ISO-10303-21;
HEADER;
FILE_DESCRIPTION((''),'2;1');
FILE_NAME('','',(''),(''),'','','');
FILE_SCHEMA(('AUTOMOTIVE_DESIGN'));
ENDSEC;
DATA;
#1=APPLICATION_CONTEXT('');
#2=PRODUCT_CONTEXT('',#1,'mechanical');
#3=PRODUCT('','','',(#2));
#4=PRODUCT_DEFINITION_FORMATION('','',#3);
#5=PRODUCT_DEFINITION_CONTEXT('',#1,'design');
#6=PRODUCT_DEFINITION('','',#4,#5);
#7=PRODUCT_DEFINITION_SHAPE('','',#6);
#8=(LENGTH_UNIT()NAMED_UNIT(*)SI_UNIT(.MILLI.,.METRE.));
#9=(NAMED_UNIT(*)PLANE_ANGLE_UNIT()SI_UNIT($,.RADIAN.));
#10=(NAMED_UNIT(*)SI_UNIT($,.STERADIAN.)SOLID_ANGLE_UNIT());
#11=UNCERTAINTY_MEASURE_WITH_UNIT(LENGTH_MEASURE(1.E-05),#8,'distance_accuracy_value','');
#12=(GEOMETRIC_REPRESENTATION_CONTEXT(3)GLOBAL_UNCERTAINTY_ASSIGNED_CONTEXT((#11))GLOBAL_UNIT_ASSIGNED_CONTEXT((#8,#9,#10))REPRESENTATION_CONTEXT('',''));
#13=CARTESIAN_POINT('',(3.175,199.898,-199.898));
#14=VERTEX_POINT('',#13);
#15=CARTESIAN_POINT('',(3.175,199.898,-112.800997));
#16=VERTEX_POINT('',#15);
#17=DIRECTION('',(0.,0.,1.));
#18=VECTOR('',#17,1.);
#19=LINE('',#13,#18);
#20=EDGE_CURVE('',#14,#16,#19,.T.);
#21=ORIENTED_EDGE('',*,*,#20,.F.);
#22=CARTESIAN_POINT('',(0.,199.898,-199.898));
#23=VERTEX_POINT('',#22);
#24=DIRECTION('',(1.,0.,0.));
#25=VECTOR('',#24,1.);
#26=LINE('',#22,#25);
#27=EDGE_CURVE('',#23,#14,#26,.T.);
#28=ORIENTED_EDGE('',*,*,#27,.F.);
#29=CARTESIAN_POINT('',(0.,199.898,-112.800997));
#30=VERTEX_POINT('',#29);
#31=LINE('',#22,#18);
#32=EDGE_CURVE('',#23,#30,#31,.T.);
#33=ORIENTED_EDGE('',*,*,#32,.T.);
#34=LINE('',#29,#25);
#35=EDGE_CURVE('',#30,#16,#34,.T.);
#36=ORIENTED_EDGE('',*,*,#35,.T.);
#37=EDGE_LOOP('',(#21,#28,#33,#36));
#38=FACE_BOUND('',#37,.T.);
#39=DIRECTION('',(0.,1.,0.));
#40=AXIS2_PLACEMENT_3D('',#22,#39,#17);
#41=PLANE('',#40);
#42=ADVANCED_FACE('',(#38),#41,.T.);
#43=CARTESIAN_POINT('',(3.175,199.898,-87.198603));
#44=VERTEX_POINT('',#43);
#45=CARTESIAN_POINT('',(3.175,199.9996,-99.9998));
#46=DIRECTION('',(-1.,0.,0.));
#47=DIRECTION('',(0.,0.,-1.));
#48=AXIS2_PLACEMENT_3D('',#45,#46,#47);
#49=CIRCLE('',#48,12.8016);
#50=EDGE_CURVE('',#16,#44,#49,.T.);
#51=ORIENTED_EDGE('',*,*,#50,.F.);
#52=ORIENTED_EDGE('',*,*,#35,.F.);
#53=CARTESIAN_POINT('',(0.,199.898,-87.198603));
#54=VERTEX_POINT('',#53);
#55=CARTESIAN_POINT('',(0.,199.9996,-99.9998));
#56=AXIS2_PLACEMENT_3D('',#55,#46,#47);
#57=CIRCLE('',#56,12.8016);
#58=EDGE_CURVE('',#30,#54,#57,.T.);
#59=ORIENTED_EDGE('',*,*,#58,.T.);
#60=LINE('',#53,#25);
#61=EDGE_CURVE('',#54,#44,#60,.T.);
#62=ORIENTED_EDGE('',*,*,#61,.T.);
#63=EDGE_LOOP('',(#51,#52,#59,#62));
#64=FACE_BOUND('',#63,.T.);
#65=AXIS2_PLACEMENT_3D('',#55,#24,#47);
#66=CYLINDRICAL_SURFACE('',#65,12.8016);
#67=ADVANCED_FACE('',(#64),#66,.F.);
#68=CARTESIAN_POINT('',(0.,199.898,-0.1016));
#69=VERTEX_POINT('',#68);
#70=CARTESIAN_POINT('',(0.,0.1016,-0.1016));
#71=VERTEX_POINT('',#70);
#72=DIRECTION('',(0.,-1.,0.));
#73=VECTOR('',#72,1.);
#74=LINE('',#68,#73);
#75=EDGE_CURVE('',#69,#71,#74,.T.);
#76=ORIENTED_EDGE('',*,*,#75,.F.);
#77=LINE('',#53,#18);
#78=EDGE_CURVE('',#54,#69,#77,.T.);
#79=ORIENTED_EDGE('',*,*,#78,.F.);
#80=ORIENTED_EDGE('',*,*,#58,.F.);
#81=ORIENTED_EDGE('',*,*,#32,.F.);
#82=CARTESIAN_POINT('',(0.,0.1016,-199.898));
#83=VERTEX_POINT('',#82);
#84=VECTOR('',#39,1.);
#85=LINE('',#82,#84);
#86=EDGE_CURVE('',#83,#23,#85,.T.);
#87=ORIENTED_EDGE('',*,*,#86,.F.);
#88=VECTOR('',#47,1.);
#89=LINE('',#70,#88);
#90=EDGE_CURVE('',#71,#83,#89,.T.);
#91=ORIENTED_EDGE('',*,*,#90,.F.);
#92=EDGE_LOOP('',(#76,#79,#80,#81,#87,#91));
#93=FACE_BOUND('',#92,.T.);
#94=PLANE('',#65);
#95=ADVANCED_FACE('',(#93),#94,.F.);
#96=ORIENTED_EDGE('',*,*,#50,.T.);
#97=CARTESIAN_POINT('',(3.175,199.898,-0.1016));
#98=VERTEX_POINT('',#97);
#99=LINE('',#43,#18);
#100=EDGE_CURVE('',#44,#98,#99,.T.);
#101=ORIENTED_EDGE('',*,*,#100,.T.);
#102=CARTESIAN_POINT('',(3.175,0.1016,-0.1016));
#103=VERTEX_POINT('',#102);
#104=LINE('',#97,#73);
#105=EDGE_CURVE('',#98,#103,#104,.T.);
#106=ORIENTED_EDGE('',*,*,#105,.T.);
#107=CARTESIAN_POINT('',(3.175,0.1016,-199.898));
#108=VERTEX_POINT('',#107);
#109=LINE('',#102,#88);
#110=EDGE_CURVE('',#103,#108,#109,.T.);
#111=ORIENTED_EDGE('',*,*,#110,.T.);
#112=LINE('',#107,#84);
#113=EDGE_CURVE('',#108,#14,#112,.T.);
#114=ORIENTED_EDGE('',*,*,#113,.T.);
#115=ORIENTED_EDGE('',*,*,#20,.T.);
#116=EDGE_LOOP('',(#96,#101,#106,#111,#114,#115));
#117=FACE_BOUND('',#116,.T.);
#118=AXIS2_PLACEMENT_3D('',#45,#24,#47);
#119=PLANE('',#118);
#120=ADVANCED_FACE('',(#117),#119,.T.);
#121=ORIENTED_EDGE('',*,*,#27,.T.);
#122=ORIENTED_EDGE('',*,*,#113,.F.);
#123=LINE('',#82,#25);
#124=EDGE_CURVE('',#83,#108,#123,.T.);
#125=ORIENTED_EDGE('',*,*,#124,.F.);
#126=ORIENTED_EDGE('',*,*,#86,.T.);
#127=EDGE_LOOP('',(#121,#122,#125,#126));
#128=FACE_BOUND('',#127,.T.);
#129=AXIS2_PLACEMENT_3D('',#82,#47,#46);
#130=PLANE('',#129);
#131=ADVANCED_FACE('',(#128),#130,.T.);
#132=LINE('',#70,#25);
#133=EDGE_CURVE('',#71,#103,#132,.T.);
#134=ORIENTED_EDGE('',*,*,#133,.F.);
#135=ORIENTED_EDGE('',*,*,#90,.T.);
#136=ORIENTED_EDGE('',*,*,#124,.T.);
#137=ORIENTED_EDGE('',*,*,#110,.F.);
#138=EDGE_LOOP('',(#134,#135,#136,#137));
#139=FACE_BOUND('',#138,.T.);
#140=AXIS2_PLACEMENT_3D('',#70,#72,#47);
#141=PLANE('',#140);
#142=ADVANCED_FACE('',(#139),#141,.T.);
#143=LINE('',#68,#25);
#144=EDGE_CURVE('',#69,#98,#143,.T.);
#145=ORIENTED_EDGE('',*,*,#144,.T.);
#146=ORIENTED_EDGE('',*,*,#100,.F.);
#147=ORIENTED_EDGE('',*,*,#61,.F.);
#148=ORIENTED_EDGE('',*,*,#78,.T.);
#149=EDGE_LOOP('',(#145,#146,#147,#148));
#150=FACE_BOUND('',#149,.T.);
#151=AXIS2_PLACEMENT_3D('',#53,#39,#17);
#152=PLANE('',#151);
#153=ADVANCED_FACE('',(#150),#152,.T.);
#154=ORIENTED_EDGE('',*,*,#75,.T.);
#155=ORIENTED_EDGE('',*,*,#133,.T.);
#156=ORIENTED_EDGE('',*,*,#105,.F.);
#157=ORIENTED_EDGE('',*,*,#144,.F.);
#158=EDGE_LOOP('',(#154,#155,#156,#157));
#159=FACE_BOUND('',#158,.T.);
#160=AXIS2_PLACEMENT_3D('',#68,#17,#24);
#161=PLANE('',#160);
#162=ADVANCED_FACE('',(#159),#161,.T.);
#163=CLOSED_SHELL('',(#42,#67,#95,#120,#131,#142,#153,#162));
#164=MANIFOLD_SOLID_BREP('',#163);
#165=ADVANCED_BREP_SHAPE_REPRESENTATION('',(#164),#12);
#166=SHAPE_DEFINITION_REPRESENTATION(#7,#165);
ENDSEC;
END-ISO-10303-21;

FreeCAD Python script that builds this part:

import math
import FreeCAD as App
import Part
import Sketcher
Q = App.Units.Quantity

doc = App.newDocument("Part")
body = doc.addObject("PartDesign::Body", "Body")

# Sketch on YZ plane
sketch1 = body.newObject("Sketcher::SketchObject", "Sketch")
sketch1.AttachmentSupport = (doc.getObject("YZ_Plane"), [""])
sketch1.MapMode = "FlatFace"
sketch1.addGeometry(Part.LineSegment(App.Vector(200, -87, 0), App.Vector(200, 0, 0)), False)
sketch1.addGeometry(Part.LineSegment(App.Vector(200, 0, 0), App.Vector(0, 0, 0)), False)
sketch1.addGeometry(Part.LineSegment(App.Vector(0, 0, 0), App.Vector(0, -200, 0)), False)
sketch1.addGeometry(Part.LineSegment(App.Vector(0, -200, 0), App.Vector(200, -200, 0)), False)
sketch1.addGeometry(Part.LineSegment(App.Vector(200, -200, 0), App.Vector(200, -113, 0)), False)
sketch1.addGeometry(Part.ArcOfCircle(Part.Circle(App.Vector(200, -100, 0), App.Vector(0, 0, 1), 13), math.radians(90), math.radians(270)), False)
sketch1.addConstraint(Sketcher.Constraint("Coincident", 0, 2, 1, 1))
sketch1.addConstraint(Sketcher.Constraint("Coincident", 1, 2, 2, 1))
sketch1.addConstraint(Sketcher.Constraint("Coincident", 2, 2, 3, 1))
sketch1.addConstraint(Sketcher.Constraint("Coincident", 3, 2, 4, 1))
sketch1.addConstraint(Sketcher.Constraint("Coincident", 4, 2, 5, 2))
sketch1.addConstraint(Sketcher.Constraint("Coincident", 5, 1, 0, 1))
sketch1.addConstraint(Sketcher.Constraint("Vertical", 0))
sketch1.addConstraint(Sketcher.Constraint("Horizontal", 1))
sketch1.addConstraint(Sketcher.Constraint("Vertical", 2))
sketch1.addConstraint(Sketcher.Constraint("Horizontal", 3))
sketch1.addConstraint(Sketcher.Constraint("Vertical", 4))
sketch1.addConstraint(Sketcher.Constraint("Coincident", 1, 2, -1, 1))
sketch1.addConstraint(Sketcher.Constraint("Vertical", 5, 3, 0, 2))
sketch1.addConstraint(Sketcher.Constraint("Vertical", 0, 2, 3, 2))
sketch1.addConstraint(Sketcher.Constraint("Equal", 3, 2))
sketch1.addConstraint(Sketcher.Constraint("Equal", 0, 4))
sketch1.addConstraint(Sketcher.Constraint("Radius", 5, Q("0.5 in")))
sketch1.addConstraint(Sketcher.Constraint("DistanceX", 1, 2, 1, 1, Q("7.874 in")))
pad1 = body.newObject("PartDesign::Pad", "Pad")
pad1.Profile = sketch1
pad1.Length = Q("0.125 in")

# Sketch on YZ plane
sketch2 = body.newObject("Sketcher::SketchObject", "Sketch001")
sketch2.AttachmentSupport = (doc.getObject("YZ_Plane"), [""])
sketch2.MapMode = "FlatFace"
sketch2.AttachmentOffset = App.Placement(App.Vector(0, 0, 0.125 * 25.4), App.Rotation())
sketch2.addGeometry(Part.LineSegment(App.Vector(200, -200, 0), App.Vector(200, -113, 0)), False)
sketch2.addGeometry(Part.ArcOfCircle(Part.Circle(App.Vector(200, -100, 0), App.Vector(0, 0, 1), 13), math.radians(90), math.radians(270)), False)
sketch2.addGeometry(Part.LineSegment(App.Vector(200, -87, 0), App.Vector(200, 0, 0)), False)
sketch2.addGeometry(Part.LineSegment(App.Vector(200, 0, 0), App.Vector(0, 0, 0)), False)
sketch2.addGeometry(Part.LineSegment(App.Vector(0, 0, 0), App.Vector(0, -200, 0)), False)
sketch2.addGeometry(Part.LineSegment(App.Vector(0, -200, 0), App.Vector(200, -200, 0)), False)
sketch2.addGeometry(Part.LineSegment(App.Vector(200, -113, 0), App.Vector(200, -200, 0)), False)
sketch2.addGeometry(Part.LineSegment(App.Vector(200, -200, 0), App.Vector(0, -200, 0)), False)
sketch2.addGeometry(Part.LineSegment(App.Vector(0, -200, 0), App.Vector(0, 0, 0)), False)
sketch2.addGeometry(Part.LineSegment(App.Vector(0, 0, 0), App.Vector(200, 0, 0)), False)
sketch2.addGeometry(Part.LineSegment(App.Vector(200, 0, 0), App.Vector(200, -87, 0)), False)
sketch2.addGeometry(Part.ArcOfCircle(Part.Circle(App.Vector(200, -100, 0), App.Vector(0, 0, 1), 13), math.radians(90), math.radians(270)), False)
sketch2.addConstraint(Sketcher.Constraint("Coincident", 0, 2, 1, 2))
sketch2.addConstraint(Sketcher.Constraint("Coincident", 1, 1, 2, 1))
sketch2.addConstraint(Sketcher.Constraint("Coincident", 2, 2, 3, 1))
sketch2.addConstraint(Sketcher.Constraint("Coincident", 3, 2, 4, 1))
sketch2.addConstraint(Sketcher.Constraint("Coincident", 4, 2, 5, 1))
sketch2.addConstraint(Sketcher.Constraint("Coincident", 5, 2, 0, 1))
sketch2.addConstraint(Sketcher.Constraint("Coincident", 6, 2, 7, 1))
sketch2.addConstraint(Sketcher.Constraint("Coincident", 7, 2, 8, 1))
sketch2.addConstraint(Sketcher.Constraint("Coincident", 8, 2, 9, 1))
sketch2.addConstraint(Sketcher.Constraint("Coincident", 9, 2, 10, 1))
sketch2.addConstraint(Sketcher.Constraint("Coincident", 10, 2, 11, 1))
sketch2.addConstraint(Sketcher.Constraint("Coincident", 11, 2, 6, 1))
sketch2.addConstraint(Sketcher.Constraint("Vertical", 0))
sketch2.addConstraint(Sketcher.Constraint("Vertical", 2))
sketch2.addConstraint(Sketcher.Constraint("Horizontal", 3))
sketch2.addConstraint(Sketcher.Constraint("Vertical", 4))
sketch2.addConstraint(Sketcher.Constraint("Horizontal", 5))
sketch2.addConstraint(Sketcher.Constraint("Vertical", 6))
sketch2.addConstraint(Sketcher.Constraint("Horizontal", 7))
sketch2.addConstraint(Sketcher.Constraint("Vertical", 8))
sketch2.addConstraint(Sketcher.Constraint("Horizontal", 9))
sketch2.addConstraint(Sketcher.Constraint("Vertical", 10))
sketch2.addConstraint(Sketcher.Constraint("Coincident", 3, 2, -1, 1))
sketch2.addConstraint(Sketcher.Constraint("Coincident", 11, 3, 1, 3))
sketch2.addConstraint(Sketcher.Constraint("Vertical", 11, 3, 0, 2))
sketch2.addConstraint(Sketcher.Constraint("Vertical", 0, 2, 1, 1))
sketch2.addConstraint(Sketcher.Constraint("Vertical", 6, 2, 9, 2))
sketch2.addConstraint(Sketcher.Constraint("Equal", 0, 2))
sketch2.addConstraint(Sketcher.Constraint("Equal", 5, 4))
sketch2.addConstraint(Sketcher.Constraint("Equal", 9, 8))
sketch2.addConstraint(Sketcher.Constraint("Equal", 6, 10))
sketch2.addConstraint(Sketcher.Constraint("Radius", 1, Q("0.5 in")))
sketch2.addConstraint(Sketcher.Constraint("Radius", 11, Q("0.504 in")))
sketch2.addConstraint(Sketcher.Constraint("DistanceX", 3, 2, 3, 1, Q("7.874 in")))
sketch2.addConstraint(Sketcher.Constraint("DistanceX", 7, 2, 7, 1, Q("7.866 in")))
sketch2.addConstraint(Sketcher.Constraint("DistanceX", -1, 1, 6, 2, Q("7.87 in")))
pocket1 = body.newObject("PartDesign::Pocket", "Pocket")
pocket1.Profile = sketch2
pocket1.Length = Q("0.125 in")

doc.recompute()
